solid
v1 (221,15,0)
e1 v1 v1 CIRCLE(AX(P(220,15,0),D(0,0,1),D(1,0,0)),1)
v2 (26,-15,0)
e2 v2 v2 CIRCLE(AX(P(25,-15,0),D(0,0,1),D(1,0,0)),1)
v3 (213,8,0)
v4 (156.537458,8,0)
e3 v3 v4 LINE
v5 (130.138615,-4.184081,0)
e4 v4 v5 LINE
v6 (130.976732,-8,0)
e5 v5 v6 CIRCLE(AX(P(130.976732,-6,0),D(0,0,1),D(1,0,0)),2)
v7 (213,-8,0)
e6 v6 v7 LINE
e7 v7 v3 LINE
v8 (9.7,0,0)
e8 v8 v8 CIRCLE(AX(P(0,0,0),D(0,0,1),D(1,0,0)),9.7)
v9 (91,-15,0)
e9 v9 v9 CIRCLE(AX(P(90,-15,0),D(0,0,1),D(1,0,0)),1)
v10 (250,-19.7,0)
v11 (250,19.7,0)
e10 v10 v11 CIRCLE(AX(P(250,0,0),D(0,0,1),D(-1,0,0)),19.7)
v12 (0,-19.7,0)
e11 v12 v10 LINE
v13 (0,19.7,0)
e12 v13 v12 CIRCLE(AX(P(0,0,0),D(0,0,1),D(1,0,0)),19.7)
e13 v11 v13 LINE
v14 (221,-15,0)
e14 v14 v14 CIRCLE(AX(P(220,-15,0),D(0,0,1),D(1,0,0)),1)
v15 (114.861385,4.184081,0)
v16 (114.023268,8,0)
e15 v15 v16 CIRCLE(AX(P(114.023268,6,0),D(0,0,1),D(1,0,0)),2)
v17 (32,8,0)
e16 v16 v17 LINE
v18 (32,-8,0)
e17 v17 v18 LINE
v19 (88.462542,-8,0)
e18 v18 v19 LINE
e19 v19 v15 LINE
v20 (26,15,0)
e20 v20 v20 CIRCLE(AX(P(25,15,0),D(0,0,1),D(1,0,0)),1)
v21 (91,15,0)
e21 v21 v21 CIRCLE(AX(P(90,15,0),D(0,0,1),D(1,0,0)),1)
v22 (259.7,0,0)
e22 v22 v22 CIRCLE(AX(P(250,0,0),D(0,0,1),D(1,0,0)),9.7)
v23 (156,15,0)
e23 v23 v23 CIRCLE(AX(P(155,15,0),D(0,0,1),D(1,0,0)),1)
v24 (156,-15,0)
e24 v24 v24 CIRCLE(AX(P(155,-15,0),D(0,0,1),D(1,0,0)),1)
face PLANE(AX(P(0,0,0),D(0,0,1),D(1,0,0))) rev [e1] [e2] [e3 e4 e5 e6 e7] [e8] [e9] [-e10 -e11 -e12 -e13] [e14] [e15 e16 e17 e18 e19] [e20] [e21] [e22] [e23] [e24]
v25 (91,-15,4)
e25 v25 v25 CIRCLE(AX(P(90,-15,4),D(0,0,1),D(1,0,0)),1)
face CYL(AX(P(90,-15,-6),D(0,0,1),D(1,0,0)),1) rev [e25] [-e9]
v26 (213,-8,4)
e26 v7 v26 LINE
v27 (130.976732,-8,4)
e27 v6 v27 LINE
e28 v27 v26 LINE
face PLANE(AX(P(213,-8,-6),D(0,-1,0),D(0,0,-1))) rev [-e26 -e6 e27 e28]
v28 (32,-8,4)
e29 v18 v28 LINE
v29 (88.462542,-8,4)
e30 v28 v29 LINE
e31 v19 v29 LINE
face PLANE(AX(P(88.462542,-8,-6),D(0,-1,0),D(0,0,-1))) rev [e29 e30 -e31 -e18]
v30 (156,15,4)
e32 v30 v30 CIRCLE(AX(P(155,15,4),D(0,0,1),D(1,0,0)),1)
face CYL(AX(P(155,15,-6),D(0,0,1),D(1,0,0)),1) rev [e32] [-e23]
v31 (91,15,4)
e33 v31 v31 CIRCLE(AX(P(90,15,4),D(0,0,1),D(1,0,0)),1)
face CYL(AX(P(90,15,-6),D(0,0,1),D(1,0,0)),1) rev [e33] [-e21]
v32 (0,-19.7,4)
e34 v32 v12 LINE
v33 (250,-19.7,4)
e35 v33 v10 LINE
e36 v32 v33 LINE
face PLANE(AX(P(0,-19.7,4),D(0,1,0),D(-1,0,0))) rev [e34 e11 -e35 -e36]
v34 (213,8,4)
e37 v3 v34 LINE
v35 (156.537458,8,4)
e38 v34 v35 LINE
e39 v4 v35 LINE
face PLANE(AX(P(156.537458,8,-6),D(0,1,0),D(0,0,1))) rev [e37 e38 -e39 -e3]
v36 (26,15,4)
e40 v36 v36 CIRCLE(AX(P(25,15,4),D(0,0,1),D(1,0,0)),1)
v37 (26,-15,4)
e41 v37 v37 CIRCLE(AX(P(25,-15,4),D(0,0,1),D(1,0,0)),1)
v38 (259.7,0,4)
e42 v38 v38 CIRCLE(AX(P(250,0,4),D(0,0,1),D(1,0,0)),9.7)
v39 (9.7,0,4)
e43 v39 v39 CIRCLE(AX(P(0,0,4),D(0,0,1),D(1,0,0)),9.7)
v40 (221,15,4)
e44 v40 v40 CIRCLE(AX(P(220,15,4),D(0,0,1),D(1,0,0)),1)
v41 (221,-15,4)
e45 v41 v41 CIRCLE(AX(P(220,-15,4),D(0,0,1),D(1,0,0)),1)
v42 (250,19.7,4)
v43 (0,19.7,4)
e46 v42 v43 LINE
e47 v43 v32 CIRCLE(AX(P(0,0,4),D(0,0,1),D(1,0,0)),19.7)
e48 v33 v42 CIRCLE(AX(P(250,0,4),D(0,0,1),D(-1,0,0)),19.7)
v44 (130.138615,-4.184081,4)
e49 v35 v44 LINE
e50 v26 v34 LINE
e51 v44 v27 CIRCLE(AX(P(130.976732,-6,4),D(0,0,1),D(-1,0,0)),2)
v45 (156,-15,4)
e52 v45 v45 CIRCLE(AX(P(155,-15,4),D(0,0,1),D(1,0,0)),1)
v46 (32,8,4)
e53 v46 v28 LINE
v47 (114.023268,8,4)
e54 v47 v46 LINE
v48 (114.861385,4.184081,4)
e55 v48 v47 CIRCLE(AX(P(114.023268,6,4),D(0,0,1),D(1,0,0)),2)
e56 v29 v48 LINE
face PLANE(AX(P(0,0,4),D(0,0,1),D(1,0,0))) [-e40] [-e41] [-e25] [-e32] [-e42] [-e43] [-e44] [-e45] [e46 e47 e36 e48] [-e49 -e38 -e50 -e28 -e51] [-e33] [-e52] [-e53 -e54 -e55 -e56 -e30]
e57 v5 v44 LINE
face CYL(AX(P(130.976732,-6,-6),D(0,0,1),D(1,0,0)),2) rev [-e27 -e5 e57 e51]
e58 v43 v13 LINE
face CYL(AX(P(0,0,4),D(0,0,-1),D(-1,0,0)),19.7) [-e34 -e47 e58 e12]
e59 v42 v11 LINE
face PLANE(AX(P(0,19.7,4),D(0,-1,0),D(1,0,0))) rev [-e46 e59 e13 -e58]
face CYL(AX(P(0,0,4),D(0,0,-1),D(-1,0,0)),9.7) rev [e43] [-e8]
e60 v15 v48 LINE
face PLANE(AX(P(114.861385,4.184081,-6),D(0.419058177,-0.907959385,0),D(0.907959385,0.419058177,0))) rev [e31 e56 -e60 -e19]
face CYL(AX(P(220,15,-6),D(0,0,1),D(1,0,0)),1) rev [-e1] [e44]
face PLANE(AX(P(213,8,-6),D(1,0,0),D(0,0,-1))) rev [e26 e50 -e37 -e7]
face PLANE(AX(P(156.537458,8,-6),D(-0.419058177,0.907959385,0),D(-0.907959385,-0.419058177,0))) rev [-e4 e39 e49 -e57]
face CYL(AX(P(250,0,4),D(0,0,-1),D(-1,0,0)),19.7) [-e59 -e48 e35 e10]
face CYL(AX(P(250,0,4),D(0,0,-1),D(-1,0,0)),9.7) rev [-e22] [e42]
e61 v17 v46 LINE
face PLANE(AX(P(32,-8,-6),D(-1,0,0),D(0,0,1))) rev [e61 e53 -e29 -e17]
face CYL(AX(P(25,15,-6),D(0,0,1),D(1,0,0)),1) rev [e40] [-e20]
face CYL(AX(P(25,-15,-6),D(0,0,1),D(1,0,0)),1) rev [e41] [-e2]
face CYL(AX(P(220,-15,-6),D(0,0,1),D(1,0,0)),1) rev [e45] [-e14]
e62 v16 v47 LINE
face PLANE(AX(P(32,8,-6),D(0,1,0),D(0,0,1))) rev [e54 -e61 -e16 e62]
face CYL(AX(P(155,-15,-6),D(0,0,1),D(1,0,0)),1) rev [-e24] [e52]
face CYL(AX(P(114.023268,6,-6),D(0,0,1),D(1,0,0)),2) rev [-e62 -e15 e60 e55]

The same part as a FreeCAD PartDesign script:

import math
import FreeCAD as App
import Part
import Sketcher
Q = App.Units.Quantity

doc = App.newDocument("Part")
body = doc.addObject("PartDesign::Body", "Body")

# Sketch on XY plane
sketch1 = doc.addObject("Sketcher::SketchObject", "Sketch")
body.addObject(sketch1)
sketch1.AttachmentSupport = (doc.XY_Plane, [""])
sketch1.MapMode = "FlatFace"
sketch1.addGeometry([
    Part.LineSegment(App.Vector(250, 20, 0), App.Vector(0, 20, 0)),  # 0
    Part.ArcOfCircle(Part.Circle(App.Vector(0, 0, 0), App.Vector(0, 0, 1), 20), math.radians(90), math.radians(270)),  # 1
    Part.LineSegment(App.Vector(0, -20, 0), App.Vector(250, -20, 0)),  # 2
    Part.ArcOfCircle(Part.Circle(App.Vector(250, 0, 0), App.Vector(0, 0, 1), 20), math.radians(-90), math.radians(90)),  # 3
    Part.Circle(App.Vector(250, 0, 0), App.Vector(0, 0, 1), 10),  # 4
    Part.Circle(App.Vector(0, 0, 0), App.Vector(0, 0, 1), 10),  # 5
], False)
sketch1.addConstraint([
    Sketcher.Constraint("Tangent", 0, 2, 1, 1),
    Sketcher.Constraint("Tangent", 1, 2, 2, 1),
    Sketcher.Constraint("Tangent", 2, 2, 3, 1),
    Sketcher.Constraint("Tangent", 3, 2, 0, 1),
    Sketcher.Constraint("Horizontal", 0),
    Sketcher.Constraint("Horizontal", 2),
    Sketcher.Constraint("Coincident", 1, 3, -1, 1),
    Sketcher.Constraint("Coincident", 5, 3, -1, 1),
    Sketcher.Constraint("Coincident", 4, 3, 3, 3),
    Sketcher.Constraint("Equal", 4, 5),
    Sketcher.Constraint("Diameter", 4, Q("19.4 mm")),
    Sketcher.Constraint("Radius", 1, Q("19.7 mm")),
    Sketcher.Constraint("DistanceX", 0, 2, 0, 1, Q("250 mm")),
])
pad1 = doc.addObject("PartDesign::Pad", "Pad")
body.addObject(pad1)
pad1.Profile = sketch1
pad1.Length = 4

# Sketch on XY plane
sketch2 = doc.addObject("Sketcher::SketchObject", "Sketch001")
body.addObject(sketch2)
sketch2.AttachmentSupport = (doc.XY_Plane, [""])
sketch2.MapMode = "FlatFace"
sketch2.AttachmentOffset = App.Placement(App.Vector(0, 0, 4), App.Rotation())
sketch2.addGeometry([
    Part.Circle(App.Vector(25, 15, 0), App.Vector(0, 0, 1), 1),  # 0
    Part.Circle(App.Vector(90, 15, 0), App.Vector(0, 0, 1), 1),  # 1
    Part.Circle(App.Vector(155, 15, 0), App.Vector(0, 0, 1), 1),  # 2
    Part.Circle(App.Vector(220, 15, 0), App.Vector(0, 0, 1), 1),  # 3
    Part.Circle(App.Vector(90, -15, 0), App.Vector(0, 0, 1), 1),  # 4
    Part.Circle(App.Vector(155, -15, 0), App.Vector(0, 0, 1), 1),  # 5
    Part.Circle(App.Vector(220, -15, 0), App.Vector(0, 0, 1), 1),  # 6
    Part.Circle(App.Vector(25, -15, 0), App.Vector(0, 0, 1), 1),  # 7
], False)
sketch2.addConstraint([
    Sketcher.Constraint("Equal", 0, 1),
    Sketcher.Constraint("Equal", 1, 2),
    Sketcher.Constraint("Equal", 2, 3),
    Sketcher.Constraint("Equal", 3, 4),
    Sketcher.Constraint("Equal", 4, 5),
    Sketcher.Constraint("Equal", 5, 6),
    Sketcher.Constraint("Equal", 6, 7),
    Sketcher.Constraint("Symmetric", 1, 3, 4, 3, -1),
    Sketcher.Constraint("Symmetric", 2, 3, 5, 3, -1),
    Sketcher.Constraint("Symmetric", 3, 3, 6, 3, -1),
    Sketcher.Constraint("Symmetric", 0, 3, 7, 3, -1),
    Sketcher.Constraint("Horizontal", 0, 3, 1, 3),
    Sketcher.Constraint("Horizontal", 1, 3, 2, 3),
    Sketcher.Constraint("Horizontal", 2, 3, 3, 3),
    Sketcher.Constraint("Diameter", 0, Q("2 mm")),
    Sketcher.Constraint("DistanceX", -1, 1, 0, 3, Q("25 mm")),
    Sketcher.Constraint("DistanceY", -1, 1, 0, 3, Q("15 mm")),
    Sketcher.Constraint("DistanceX", -1, 1, 1, 3, Q("90 mm")),
    Sketcher.Constraint("DistanceX", -1, 1, 2, 3, Q("155 mm")),
    Sketcher.Constraint("DistanceX", -1, 1, 3, 3, Q("220 mm")),
])
pocket1 = doc.addObject("PartDesign::Pocket", "Pocket")
body.addObject(pocket1)
pocket1.Profile = sketch2
pocket1.Length = 10

# Sketch on XY plane
sketch3 = doc.addObject("Sketcher::SketchObject", "Sketch002")
body.addObject(sketch3)
sketch3.AttachmentSupport = (doc.XY_Plane, [""])
sketch3.MapMode = "FlatFace"
sketch3.AttachmentOffset = App.Placement(App.Vector(0, 0, 4), App.Rotation())
sketch3.addGeometry([
    Part.LineSegment(App.Vector(114, 8, 0), App.Vector(32, 8, 0)),  # 0
    Part.LineSegment(App.Vector(32, 8, 0), App.Vector(32, -8, 0)),  # 1
    Part.LineSegment(App.Vector(32, -8, 0), App.Vector(88.5, -8, 0)),  # 2
    Part.LineSegment(App.Vector(88.5, -8, 0), App.Vector(114.9, 4.2, 0)),  # 3
    Part.ArcOfCircle(Part.Circle(App.Vector(114, 6, 0), App.Vector(0, 0, 1), 2), math.radians(-65), math.radians(90)),  # 4
    Part.LineSegment(App.Vector(156.5, 8, 0), App.Vector(130.1, -4.2, 0)),  # 5
    Part.ArcOfCircle(Part.Circle(App.Vector(131, -6, 0), App.Vector(0, 0, 1), 2), math.radians(115), math.radians(270)),  # 6
    Part.LineSegment(App.Vector(131, -8, 0), App.Vector(213, -8, 0)),  # 7
    Part.LineSegment(App.Vector(213, -8, 0), App.Vector(213, 8, 0)),  # 8
    Part.LineSegment(App.Vector(213, 8, 0), App.Vector(156.5, 8, 0)),  # 9
], False)
sketch3.addConstraint([
    Sketcher.Constraint("Coincident", 0, 2, 1, 1),
    Sketcher.Constraint("Coincident", 1, 2, 2, 1),
    Sketcher.Constraint("Coincident", 2, 2, 3, 1),
    Sketcher.Constraint("Tangent", 3, 2, 4, 1),
    Sketcher.Constraint("Tangent", 4, 2, 0, 1),
    Sketcher.Constraint("Tangent", 5, 2, 6, 1),
    Sketcher.Constraint("Tangent", 6, 2, 7, 1),
    Sketcher.Constraint("Coincident", 7, 2, 8, 1),
    Sketcher.Constraint("Coincident", 8, 2, 9, 1),
    Sketcher.Constraint("Coincident", 9, 2, 5, 1),
    Sketcher.Constraint("Horizontal", 0),
    Sketcher.Constraint("Vertical", 1),
    Sketcher.Constraint("Horizontal", 2),
    Sketcher.Constraint("Horizontal", 7),
    Sketcher.Constraint("Vertical", 8),
    Sketcher.Constraint("Horizontal", 9),
    Sketcher.Constraint("Equal", 4, 6),
    Sketcher.Constraint("Parallel", 3, 5),
    Sketcher.Constraint("Horizontal", 2, 2, 6, 2),
    Sketcher.Constraint("Horizontal", 4, 2, 8, 2),
    Sketcher.Constraint("Equal", 0, 7),
    Sketcher.Constraint("Radius", 4, Q("2 mm")),
    Sketcher.Constraint("DistanceY", 1, 2, 1, 1, Q("16 mm")),
    Sketcher.Constraint("DistanceY", -1, 1, 4, 3, Q("6 mm")),
    Sketcher.Constraint("DistanceX", -1, 1, 0, 2, Q("32 mm")),
    Sketcher.Constraint("DistanceX", -1, 1, 7, 2, Q("213 mm")),
    Sketcher.Constraint("DistanceX", 0, 2, 0, 1, Q("82.023268 mm")),
    Sketcher.Constraint("DistanceX", 2, 1, 2, 2, Q("56.462542 mm")),
])
pocket2 = doc.addObject("PartDesign::Pocket", "Pocket001")
body.addObject(pocket2)
pocket2.Profile = sketch3
pocket2.Length = 10

doc.recompute()
